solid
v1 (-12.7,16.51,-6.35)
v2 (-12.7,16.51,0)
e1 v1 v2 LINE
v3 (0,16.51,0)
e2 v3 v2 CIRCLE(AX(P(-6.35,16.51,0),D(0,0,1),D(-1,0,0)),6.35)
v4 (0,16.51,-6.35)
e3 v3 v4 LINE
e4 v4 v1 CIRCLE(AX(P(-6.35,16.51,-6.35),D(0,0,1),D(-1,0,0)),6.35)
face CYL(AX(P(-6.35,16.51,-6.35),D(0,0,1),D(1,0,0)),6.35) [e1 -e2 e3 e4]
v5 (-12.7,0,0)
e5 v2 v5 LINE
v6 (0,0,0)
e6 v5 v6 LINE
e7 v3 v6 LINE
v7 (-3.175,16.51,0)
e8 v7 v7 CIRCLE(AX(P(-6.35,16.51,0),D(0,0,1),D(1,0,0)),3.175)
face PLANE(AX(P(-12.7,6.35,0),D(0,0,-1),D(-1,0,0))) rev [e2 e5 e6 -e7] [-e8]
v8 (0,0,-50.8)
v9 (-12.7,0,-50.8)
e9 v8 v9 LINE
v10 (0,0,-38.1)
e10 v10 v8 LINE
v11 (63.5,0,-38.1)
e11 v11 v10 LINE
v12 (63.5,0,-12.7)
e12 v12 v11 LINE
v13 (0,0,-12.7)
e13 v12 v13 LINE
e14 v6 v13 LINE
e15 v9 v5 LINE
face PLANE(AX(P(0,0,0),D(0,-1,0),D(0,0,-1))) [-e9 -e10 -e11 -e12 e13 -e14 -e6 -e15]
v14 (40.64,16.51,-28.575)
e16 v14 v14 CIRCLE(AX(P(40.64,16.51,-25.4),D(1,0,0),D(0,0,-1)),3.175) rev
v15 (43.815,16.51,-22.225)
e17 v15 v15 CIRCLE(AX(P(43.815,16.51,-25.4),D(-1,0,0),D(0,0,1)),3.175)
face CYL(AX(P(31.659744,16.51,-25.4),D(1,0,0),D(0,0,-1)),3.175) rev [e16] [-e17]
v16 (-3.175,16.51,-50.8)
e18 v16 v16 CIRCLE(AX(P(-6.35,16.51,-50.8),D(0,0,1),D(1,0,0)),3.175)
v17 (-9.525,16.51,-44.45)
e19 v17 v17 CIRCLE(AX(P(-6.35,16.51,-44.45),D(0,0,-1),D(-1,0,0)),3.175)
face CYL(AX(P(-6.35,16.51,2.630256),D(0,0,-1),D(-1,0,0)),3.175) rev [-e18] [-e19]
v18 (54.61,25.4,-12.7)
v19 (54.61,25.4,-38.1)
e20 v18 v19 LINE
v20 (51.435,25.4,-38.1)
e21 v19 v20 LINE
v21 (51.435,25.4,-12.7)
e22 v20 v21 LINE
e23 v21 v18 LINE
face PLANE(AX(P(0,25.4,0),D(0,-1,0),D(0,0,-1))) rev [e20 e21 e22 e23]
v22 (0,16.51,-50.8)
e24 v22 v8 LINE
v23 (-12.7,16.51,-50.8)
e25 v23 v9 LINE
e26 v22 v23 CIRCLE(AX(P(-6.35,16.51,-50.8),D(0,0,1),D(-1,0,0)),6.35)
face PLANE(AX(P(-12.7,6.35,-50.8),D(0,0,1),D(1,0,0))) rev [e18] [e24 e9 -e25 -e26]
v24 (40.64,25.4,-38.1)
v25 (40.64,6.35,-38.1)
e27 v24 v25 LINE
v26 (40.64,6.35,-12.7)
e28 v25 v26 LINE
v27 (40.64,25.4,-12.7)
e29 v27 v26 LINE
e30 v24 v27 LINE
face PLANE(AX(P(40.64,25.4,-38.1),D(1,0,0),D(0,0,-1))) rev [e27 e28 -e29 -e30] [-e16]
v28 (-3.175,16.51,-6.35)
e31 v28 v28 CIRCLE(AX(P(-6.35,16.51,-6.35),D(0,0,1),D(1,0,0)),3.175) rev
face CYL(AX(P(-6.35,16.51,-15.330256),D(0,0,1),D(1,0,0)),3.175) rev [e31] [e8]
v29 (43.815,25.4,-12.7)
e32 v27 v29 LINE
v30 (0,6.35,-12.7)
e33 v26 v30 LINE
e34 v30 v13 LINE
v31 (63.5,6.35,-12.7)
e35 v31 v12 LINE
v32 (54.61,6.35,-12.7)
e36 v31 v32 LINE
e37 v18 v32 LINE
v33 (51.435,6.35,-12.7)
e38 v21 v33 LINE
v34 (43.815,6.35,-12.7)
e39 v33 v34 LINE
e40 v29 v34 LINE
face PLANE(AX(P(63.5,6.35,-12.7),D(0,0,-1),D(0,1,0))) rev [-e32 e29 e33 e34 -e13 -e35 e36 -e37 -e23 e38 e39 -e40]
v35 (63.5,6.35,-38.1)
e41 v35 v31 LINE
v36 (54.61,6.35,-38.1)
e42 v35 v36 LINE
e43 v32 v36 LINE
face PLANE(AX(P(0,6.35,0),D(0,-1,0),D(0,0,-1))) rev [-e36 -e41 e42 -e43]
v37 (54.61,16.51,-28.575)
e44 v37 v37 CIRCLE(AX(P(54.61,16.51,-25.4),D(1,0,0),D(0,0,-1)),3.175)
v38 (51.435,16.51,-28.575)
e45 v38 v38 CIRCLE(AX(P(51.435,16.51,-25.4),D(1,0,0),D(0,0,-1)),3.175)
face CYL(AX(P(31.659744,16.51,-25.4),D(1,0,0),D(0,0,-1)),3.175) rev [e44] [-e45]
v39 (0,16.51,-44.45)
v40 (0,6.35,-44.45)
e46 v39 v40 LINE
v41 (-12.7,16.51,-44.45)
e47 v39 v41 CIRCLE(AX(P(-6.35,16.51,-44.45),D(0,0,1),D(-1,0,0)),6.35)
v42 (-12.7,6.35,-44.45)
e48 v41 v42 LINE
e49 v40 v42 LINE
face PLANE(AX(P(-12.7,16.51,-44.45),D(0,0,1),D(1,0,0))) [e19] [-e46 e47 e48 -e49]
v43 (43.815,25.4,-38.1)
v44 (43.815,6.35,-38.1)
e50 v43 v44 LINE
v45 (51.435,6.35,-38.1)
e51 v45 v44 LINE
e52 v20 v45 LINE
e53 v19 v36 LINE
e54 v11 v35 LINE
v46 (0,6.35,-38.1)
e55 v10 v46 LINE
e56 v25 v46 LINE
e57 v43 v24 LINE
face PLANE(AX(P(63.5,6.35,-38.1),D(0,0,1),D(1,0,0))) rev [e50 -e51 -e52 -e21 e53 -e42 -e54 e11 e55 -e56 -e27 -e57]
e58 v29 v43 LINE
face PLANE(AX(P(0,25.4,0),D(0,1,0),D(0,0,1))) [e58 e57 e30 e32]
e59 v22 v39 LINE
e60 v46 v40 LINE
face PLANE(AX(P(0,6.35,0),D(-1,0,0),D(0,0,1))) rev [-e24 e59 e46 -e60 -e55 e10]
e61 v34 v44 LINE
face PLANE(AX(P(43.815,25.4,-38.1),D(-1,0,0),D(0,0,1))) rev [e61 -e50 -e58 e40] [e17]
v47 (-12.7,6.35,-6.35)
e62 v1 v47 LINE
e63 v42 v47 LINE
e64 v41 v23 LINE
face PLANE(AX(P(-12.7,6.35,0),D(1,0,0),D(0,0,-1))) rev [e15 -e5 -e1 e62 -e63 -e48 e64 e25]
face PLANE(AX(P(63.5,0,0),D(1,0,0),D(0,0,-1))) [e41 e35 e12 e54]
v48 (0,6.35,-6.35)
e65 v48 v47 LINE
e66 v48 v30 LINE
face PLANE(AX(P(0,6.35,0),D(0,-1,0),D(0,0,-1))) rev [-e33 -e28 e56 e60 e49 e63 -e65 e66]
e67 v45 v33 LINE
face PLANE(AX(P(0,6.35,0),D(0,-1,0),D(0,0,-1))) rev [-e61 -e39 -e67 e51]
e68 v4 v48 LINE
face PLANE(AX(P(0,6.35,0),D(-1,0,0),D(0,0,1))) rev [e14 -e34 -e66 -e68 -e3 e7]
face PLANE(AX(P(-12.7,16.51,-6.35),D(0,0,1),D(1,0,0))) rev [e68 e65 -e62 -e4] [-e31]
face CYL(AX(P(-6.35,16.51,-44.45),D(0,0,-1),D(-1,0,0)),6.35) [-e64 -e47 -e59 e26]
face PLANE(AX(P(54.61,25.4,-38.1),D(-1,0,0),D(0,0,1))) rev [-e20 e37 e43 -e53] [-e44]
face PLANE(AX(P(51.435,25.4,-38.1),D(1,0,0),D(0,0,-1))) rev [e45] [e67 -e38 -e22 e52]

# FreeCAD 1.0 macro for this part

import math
import FreeCAD as App
import Part
import Sketcher
from FreeCAD import Vector
Q = App.Units.Quantity

doc = App.newDocument("Part")
body = doc.addObject("PartDesign::Body", "Body")

# Sketch on XZ plane
sketch1 = doc.addObject("Sketcher::SketchObject", "Sketch")
body.addObject(sketch1)
sketch1.AttachmentSupport = (doc.XZ_Plane, [""])
sketch1.MapMode = "FlatFace"
sketch1.addGeometry(Part.LineSegment(Vector(-13, -51, 0), Vector(-13, 0, 0)), False)
sketch1.addGeometry(Part.LineSegment(Vector(-13, 0, 0), Vector(0, 0, 0)), False)
sketch1.addGeometry(Part.LineSegment(Vector(0, 0, 0), Vector(0, -51, 0)), False)
sketch1.addGeometry(Part.LineSegment(Vector(0, -51, 0), Vector(-13, -51, 0)), False)
sketch1.addConstraint(Sketcher.Constraint("Coincident", 0, 2, 1, 1))
sketch1.addConstraint(Sketcher.Constraint("Coincident", 1, 2, 2, 1))
sketch1.addConstraint(Sketcher.Constraint("Coincident", 2, 2, 3, 1))
sketch1.addConstraint(Sketcher.Constraint("Coincident", 3, 2, 0, 1))
sketch1.addConstraint(Sketcher.Constraint("Vertical", 0))
sketch1.addConstraint(Sketcher.Constraint("Horizontal", 1))
sketch1.addConstraint(Sketcher.Constraint("Vertical", 2))
sketch1.addConstraint(Sketcher.Constraint("Horizontal", 3))
sketch1.addConstraint(Sketcher.Constraint("Coincident", 1, 2, -1, 1))
sketch1.addConstraint(Sketcher.Constraint("DistanceY", 0, 1, 0, 2, Q("2 in")))
sketch1.addConstraint(Sketcher.Constraint("DistanceX", 1, 1, 1, 2, Q("0.5 in")))
pad1 = doc.addObject("PartDesign::Pad", "Pad")
body.addObject(pad1)
pad1.Profile = sketch1
pad1.Length = Q("0.25 in")
pad1.Reversed = True

# Sketch on XZ plane
sketch2 = doc.addObject("Sketcher::SketchObject", "Sketch001")
body.addObject(sketch2)
sketch2.AttachmentSupport = (doc.XZ_Plane, [""])
sketch2.MapMode = "FlatFace"
sketch2.AttachmentOffset = App.Placement(Vector(0, 0, -0.25 * 25.4), App.Rotation())
sketch2.addGeometry(Part.LineSegment(Vector(-13, -6, 0), Vector(-13, 0, 0)), False)
sketch2.addGeometry(Part.LineSegment(Vector(-13, 0, 0), Vector(0, 0, 0)), False)
sketch2.addGeometry(Part.LineSegment(Vector(0, 0, 0), Vector(0, -6, 0)), False)
sketch2.addGeometry(Part.LineSegment(Vector(0, -6, 0), Vector(-13, -6, 0)), False)
sketch2.addConstraint(Sketcher.Constraint("Coincident", 0, 2, 1, 1))
sketch2.addConstraint(Sketcher.Constraint("Coincident", 1, 2, 2, 1))
sketch2.addConstraint(Sketcher.Constraint("Coincident", 2, 2, 3, 1))
sketch2.addConstraint(Sketcher.Constraint("Coincident", 3, 2, 0, 1))
sketch2.addConstraint(Sketcher.Constraint("Vertical", 0))
sketch2.addConstraint(Sketcher.Constraint("Horizontal", 1))
sketch2.addConstraint(Sketcher.Constraint("Vertical", 2))
sketch2.addConstraint(Sketcher.Constraint("Horizontal", 3))
sketch2.addConstraint(Sketcher.Constraint("Coincident", 1, 2, -1, 1))
sketch2.addConstraint(Sketcher.Constraint("DistanceX", 1, 1, 1, 2, Q("0.5 in")))
sketch2.addConstraint(Sketcher.Constraint("DistanceY", 0, 1, 0, 2, Q("0.25 in")))
pad2 = doc.addObject("PartDesign::Pad", "Pad001")
body.addObject(pad2)
pad2.Profile = sketch2
pad2.Length = Q("0.4 in")
pad2.Reversed = True
doc.recompute()

datumplane = doc.addObject("PartDesign::Plane", "DatumPlane")
body.addObject(datumplane)
datumplane.AttachmentSupport = (doc.XY_Plane, [""])
datumplane.MapMode = "FlatFace"
datumplane.AttachmentOffset = App.Placement(Vector(0, 0, -1 * 25.4), App.Rotation())
mirrored = doc.addObject("PartDesign::Mirrored", "Mirrored")
body.addObject(mirrored)
mirrored.Originals = [pad2]
mirrored.MirrorPlane = (datumplane, [""])
body.Tip = mirrored

# Sketch on XY plane
sketch3 = doc.addObject("Sketcher::SketchObject", "Sketch002")
body.addObject(sketch3)
sketch3.AttachmentSupport = (doc.XY_Plane, [""])
sketch3.MapMode = "FlatFace"
sketch3.addGeometry(Part.LineSegment(Vector(-13, 17, 0), Vector(0, 17, 0)), False)
sketch3.addGeometry(Part.ArcOfCircle(Part.Circle(Vector(-6, 17, 0), Vector(0, 0, 1), 6), math.radians(0), math.radians(180)), False)
sketch3.addConstraint(Sketcher.Constraint("Coincident", 0, 1, 1, 2))
sketch3.addConstraint(Sketcher.Constraint("Coincident", 1, 1, 0, 2))
sketch3.addConstraint(Sketcher.Constraint("Horizontal", 0))
sketch3.addConstraint(Sketcher.Constraint("PointOnObject", 1, 1, -2))
sketch3.addConstraint(Sketcher.Constraint("Horizontal", 1, 3, 0, 1))
sketch3.addConstraint(Sketcher.Constraint("Radius", 1, Q("0.25 in")))
sketch3.addConstraint(Sketcher.Constraint("DistanceY", -1, 1, 1, 3, Q("0.65 in")))
pad3 = doc.addObject("PartDesign::Pad", "Pad002")
body.addObject(pad3)
pad3.Profile = sketch3
pad3.Length = Q("0.25 in")
pad3.Reversed = True

# Sketch on XY plane
sketch4 = doc.addObject("Sketcher::SketchObject", "Sketch003")
body.addObject(sketch4)
sketch4.AttachmentSupport = (doc.XY_Plane, [""])
sketch4.MapMode = "FlatFace"
sketch4.addGeometry(Part.Circle(Vector(-6.3, 16.5, 0), Vector(0, 0, 1), 3.2), False)
sketch4.addConstraint(Sketcher.Constraint("Diameter", 0, Q("0.25 in")))
sketch4.addConstraint(Sketcher.Constraint("DistanceX", 0, 3, -1, 1, Q("0.25 in")))
sketch4.addConstraint(Sketcher.Constraint("DistanceY", -1, 1, 0, 3, Q("0.65 in")))
pocket1 = doc.addObject("PartDesign::Pocket", "Pocket")
body.addObject(pocket1)
pocket1.Profile = sketch4
pocket1.Length = Q("0.25 in")
doc.recompute()

datumplane2 = doc.addObject("PartDesign::Plane", "DatumPlane001")
body.addObject(datumplane2)
datumplane2.AttachmentSupport = (doc.XY_Plane, [""])
datumplane2.MapMode = "FlatFace"
datumplane2.AttachmentOffset = App.Placement(Vector(0, 0, -1 * 25.4), App.Rotation())
mirrored2 = doc.addObject("PartDesign::Mirrored", "Mirrored001")
body.addObject(mirrored2)
mirrored2.Originals = [pad3, pocket1]
mirrored2.MirrorPlane = (datumplane2, [""])
body.Tip = mirrored2

# Sketch on YZ plane
sketch5 = doc.addObject("Sketcher::SketchObject", "Sketch004")
body.addObject(sketch5)
sketch5.AttachmentSupport = (doc.YZ_Plane, [""])
sketch5.MapMode = "FlatFace"
sketch5.addGeometry(Part.LineSegment(Vector(6, -13, 0), Vector(0, -13, 0)), False)
sketch5.addGeometry(Part.LineSegment(Vector(0, -13, 0), Vector(0, -38, 0)), False)
sketch5.addGeometry(Part.LineSegment(Vector(0, -38, 0), Vector(6, -38, 0)), False)
sketch5.addGeometry(Part.LineSegment(Vector(6, -38, 0), Vector(6, -13, 0)), False)
sketch5.addConstraint(Sketcher.Constraint("Coincident", 0, 2, 1, 1))
sketch5.addConstraint(Sketcher.Constraint("Coincident", 1, 2, 2, 1))
sketch5.addConstraint(Sketcher.Constraint("Coincident", 2, 2, 3, 1))
sketch5.addConstraint(Sketcher.Constraint("Coincident", 3, 2, 0, 1))
sketch5.addConstraint(Sketcher.Constraint("Horizontal", 0))
sketch5.addConstraint(Sketcher.Constraint("Vertical", 1))
sketch5.addConstraint(Sketcher.Constraint("Horizontal", 2))
sketch5.addConstraint(Sketcher.Constraint("Vertical", 3))
sketch5.addConstraint(Sketcher.Constraint("PointOnObject", 0, 2, -2))
sketch5.addConstraint(Sketcher.Constraint("DistanceY", 1, 2, 1, 1, Q("1 in")))
sketch5.addConstraint(Sketcher.Constraint("DistanceX", 0, 2, 0, 1, Q("0.25 in")))
sketch5.addConstraint(Sketcher.Constraint("DistanceY", 0, 2, -1, 1, Q("0.5 in")))
pad4 = doc.addObject("PartDesign::Pad", "Pad003")
body.addObject(pad4)
pad4.Profile = sketch5
pad4.Length = Q("2.5 in")

# Sketch on XZ plane
sketch6 = doc.addObject("Sketcher::SketchObject", "Sketch005")
body.addObject(sketch6)
sketch6.AttachmentSupport = (doc.XZ_Plane, [""])
sketch6.MapMode = "FlatFace"
sketch6.AttachmentOffset = App.Placement(Vector(0, 0, -0.25 * 25.4), App.Rotation())
sketch6.addGeometry(Part.LineSegment(Vector(40.6, -38.1, 0), Vector(40.6, -12.7, 0)), False)
sketch6.addGeometry(Part.LineSegment(Vector(40.6, -12.7, 0), Vector(43.8, -12.7, 0)), False)
sketch6.addGeometry(Part.LineSegment(Vector(43.8, -12.7, 0), Vector(43.8, -38.1, 0)), False)
sketch6.addGeometry(Part.LineSegment(Vector(43.8, -38.1, 0), Vector(40.6, -38.1, 0)), False)
sketch6.addGeometry(Part.LineSegment(Vector(51.4, -38.1, 0), Vector(51.4, -12.7, 0)), False)
sketch6.addGeometry(Part.LineSegment(Vector(51.4, -12.7, 0), Vector(54.6, -12.7, 0)), False)
sketch6.addGeometry(Part.LineSegment(Vector(54.6, -12.7, 0), Vector(54.6, -38.1, 0)), False)
sketch6.addGeometry(Part.LineSegment(Vector(54.6, -38.1, 0), Vector(51.4, -38.1, 0)), False)
sketch6.addConstraint(Sketcher.Constraint("Coincident", 0, 2, 1, 1))
sketch6.addConstraint(Sketcher.Constraint("Coincident", 1, 2, 2, 1))
sketch6.addConstraint(Sketcher.Constraint("Coincident", 2, 2, 3, 1))
sketch6.addConstraint(Sketcher.Constraint("Coincident", 3, 2, 0, 1))
sketch6.addConstraint(Sketcher.Constraint("Coincident", 4, 2, 5, 1))
sketch6.addConstraint(Sketcher.Constraint("Coincident", 5, 2, 6, 1))
sketch6.addConstraint(Sketcher.Constraint("Coincident", 6, 2, 7, 1))
sketch6.addConstraint(Sketcher.Constraint("Coincident", 7, 2, 4, 1))
sketch6.addConstraint(Sketcher.Constraint("Vertical", 0))
sketch6.addConstraint(Sketcher.Constraint("Horizontal", 1))
sketch6.addConstraint(Sketcher.Constraint("Vertical", 2))
sketch6.addConstraint(Sketcher.Constraint("Horizontal", 3))
sketch6.addConstraint(Sketcher.Constraint("Vertical", 4))
sketch6.addConstraint(Sketcher.Constraint("Horizontal", 5))
sketch6.addConstraint(Sketcher.Constraint("Vertical", 6))
sketch6.addConstraint(Sketcher.Constraint("Horizontal", 7))
sketch6.addConstraint(Sketcher.Constraint("Horizontal", 1, 2, 4, 2))
sketch6.addConstraint(Sketcher.Constraint("Horizontal", 3, 2, 6, 2))
sketch6.addConstraint(Sketcher.Constraint("Equal", 3, 5))
sketch6.addConstraint(Sketcher.Constraint("DistanceY", 0, 1, 0, 2, Q("1 in")))
sketch6.addConstraint(Sketcher.Constraint("DistanceX", -1, 1, 0, 2, Q("1.6 in")))
sketch6.addConstraint(Sketcher.Constraint("DistanceY", 0, 2, -1, 1, Q("0.5 in")))
sketch6.addConstraint(Sketcher.Constraint("DistanceX", 1, 2, 4, 2, Q("0.3 in")))
sketch6.addConstraint(Sketcher.Constraint("DistanceX", 1, 1, 1, 2, Q("0.125 in")))
pad5 = doc.addObject("PartDesign::Pad", "Pad004")
body.addObject(pad5)
pad5.Profile = sketch6
pad5.Length = Q("0.75 in")
pad5.Reversed = True

# Sketch on YZ plane
sketch7 = doc.addObject("Sketcher::SketchObject", "Sketch006")
body.addObject(sketch7)
sketch7.AttachmentSupport = (doc.YZ_Plane, [""])
sketch7.MapMode = "FlatFace"
sketch7.AttachmentOffset = App.Placement(Vector(0, 0, 2.15 * 25.4), App.Rotation())
sketch7.addGeometry(Part.Circle(Vector(16.5, -25.4, 0), Vector(0, 0, 1), 3.2), False)
sketch7.addConstraint(Sketcher.Constraint("Diameter", 0, Q("0.25 in")))
sketch7.addConstraint(Sketcher.Constraint("DistanceY", 0, 3, -1, 1, Q("1 in")))
sketch7.addConstraint(Sketcher.Constraint("DistanceX", -1, 1, 0, 3, Q("0.65 in")))
pocket2 = doc.addObject("PartDesign::Pocket", "Pocket001")
body.addObject(pocket2)
pocket2.Profile = sketch7
pocket2.Length = Q("0.55 in")

doc.recompute()
